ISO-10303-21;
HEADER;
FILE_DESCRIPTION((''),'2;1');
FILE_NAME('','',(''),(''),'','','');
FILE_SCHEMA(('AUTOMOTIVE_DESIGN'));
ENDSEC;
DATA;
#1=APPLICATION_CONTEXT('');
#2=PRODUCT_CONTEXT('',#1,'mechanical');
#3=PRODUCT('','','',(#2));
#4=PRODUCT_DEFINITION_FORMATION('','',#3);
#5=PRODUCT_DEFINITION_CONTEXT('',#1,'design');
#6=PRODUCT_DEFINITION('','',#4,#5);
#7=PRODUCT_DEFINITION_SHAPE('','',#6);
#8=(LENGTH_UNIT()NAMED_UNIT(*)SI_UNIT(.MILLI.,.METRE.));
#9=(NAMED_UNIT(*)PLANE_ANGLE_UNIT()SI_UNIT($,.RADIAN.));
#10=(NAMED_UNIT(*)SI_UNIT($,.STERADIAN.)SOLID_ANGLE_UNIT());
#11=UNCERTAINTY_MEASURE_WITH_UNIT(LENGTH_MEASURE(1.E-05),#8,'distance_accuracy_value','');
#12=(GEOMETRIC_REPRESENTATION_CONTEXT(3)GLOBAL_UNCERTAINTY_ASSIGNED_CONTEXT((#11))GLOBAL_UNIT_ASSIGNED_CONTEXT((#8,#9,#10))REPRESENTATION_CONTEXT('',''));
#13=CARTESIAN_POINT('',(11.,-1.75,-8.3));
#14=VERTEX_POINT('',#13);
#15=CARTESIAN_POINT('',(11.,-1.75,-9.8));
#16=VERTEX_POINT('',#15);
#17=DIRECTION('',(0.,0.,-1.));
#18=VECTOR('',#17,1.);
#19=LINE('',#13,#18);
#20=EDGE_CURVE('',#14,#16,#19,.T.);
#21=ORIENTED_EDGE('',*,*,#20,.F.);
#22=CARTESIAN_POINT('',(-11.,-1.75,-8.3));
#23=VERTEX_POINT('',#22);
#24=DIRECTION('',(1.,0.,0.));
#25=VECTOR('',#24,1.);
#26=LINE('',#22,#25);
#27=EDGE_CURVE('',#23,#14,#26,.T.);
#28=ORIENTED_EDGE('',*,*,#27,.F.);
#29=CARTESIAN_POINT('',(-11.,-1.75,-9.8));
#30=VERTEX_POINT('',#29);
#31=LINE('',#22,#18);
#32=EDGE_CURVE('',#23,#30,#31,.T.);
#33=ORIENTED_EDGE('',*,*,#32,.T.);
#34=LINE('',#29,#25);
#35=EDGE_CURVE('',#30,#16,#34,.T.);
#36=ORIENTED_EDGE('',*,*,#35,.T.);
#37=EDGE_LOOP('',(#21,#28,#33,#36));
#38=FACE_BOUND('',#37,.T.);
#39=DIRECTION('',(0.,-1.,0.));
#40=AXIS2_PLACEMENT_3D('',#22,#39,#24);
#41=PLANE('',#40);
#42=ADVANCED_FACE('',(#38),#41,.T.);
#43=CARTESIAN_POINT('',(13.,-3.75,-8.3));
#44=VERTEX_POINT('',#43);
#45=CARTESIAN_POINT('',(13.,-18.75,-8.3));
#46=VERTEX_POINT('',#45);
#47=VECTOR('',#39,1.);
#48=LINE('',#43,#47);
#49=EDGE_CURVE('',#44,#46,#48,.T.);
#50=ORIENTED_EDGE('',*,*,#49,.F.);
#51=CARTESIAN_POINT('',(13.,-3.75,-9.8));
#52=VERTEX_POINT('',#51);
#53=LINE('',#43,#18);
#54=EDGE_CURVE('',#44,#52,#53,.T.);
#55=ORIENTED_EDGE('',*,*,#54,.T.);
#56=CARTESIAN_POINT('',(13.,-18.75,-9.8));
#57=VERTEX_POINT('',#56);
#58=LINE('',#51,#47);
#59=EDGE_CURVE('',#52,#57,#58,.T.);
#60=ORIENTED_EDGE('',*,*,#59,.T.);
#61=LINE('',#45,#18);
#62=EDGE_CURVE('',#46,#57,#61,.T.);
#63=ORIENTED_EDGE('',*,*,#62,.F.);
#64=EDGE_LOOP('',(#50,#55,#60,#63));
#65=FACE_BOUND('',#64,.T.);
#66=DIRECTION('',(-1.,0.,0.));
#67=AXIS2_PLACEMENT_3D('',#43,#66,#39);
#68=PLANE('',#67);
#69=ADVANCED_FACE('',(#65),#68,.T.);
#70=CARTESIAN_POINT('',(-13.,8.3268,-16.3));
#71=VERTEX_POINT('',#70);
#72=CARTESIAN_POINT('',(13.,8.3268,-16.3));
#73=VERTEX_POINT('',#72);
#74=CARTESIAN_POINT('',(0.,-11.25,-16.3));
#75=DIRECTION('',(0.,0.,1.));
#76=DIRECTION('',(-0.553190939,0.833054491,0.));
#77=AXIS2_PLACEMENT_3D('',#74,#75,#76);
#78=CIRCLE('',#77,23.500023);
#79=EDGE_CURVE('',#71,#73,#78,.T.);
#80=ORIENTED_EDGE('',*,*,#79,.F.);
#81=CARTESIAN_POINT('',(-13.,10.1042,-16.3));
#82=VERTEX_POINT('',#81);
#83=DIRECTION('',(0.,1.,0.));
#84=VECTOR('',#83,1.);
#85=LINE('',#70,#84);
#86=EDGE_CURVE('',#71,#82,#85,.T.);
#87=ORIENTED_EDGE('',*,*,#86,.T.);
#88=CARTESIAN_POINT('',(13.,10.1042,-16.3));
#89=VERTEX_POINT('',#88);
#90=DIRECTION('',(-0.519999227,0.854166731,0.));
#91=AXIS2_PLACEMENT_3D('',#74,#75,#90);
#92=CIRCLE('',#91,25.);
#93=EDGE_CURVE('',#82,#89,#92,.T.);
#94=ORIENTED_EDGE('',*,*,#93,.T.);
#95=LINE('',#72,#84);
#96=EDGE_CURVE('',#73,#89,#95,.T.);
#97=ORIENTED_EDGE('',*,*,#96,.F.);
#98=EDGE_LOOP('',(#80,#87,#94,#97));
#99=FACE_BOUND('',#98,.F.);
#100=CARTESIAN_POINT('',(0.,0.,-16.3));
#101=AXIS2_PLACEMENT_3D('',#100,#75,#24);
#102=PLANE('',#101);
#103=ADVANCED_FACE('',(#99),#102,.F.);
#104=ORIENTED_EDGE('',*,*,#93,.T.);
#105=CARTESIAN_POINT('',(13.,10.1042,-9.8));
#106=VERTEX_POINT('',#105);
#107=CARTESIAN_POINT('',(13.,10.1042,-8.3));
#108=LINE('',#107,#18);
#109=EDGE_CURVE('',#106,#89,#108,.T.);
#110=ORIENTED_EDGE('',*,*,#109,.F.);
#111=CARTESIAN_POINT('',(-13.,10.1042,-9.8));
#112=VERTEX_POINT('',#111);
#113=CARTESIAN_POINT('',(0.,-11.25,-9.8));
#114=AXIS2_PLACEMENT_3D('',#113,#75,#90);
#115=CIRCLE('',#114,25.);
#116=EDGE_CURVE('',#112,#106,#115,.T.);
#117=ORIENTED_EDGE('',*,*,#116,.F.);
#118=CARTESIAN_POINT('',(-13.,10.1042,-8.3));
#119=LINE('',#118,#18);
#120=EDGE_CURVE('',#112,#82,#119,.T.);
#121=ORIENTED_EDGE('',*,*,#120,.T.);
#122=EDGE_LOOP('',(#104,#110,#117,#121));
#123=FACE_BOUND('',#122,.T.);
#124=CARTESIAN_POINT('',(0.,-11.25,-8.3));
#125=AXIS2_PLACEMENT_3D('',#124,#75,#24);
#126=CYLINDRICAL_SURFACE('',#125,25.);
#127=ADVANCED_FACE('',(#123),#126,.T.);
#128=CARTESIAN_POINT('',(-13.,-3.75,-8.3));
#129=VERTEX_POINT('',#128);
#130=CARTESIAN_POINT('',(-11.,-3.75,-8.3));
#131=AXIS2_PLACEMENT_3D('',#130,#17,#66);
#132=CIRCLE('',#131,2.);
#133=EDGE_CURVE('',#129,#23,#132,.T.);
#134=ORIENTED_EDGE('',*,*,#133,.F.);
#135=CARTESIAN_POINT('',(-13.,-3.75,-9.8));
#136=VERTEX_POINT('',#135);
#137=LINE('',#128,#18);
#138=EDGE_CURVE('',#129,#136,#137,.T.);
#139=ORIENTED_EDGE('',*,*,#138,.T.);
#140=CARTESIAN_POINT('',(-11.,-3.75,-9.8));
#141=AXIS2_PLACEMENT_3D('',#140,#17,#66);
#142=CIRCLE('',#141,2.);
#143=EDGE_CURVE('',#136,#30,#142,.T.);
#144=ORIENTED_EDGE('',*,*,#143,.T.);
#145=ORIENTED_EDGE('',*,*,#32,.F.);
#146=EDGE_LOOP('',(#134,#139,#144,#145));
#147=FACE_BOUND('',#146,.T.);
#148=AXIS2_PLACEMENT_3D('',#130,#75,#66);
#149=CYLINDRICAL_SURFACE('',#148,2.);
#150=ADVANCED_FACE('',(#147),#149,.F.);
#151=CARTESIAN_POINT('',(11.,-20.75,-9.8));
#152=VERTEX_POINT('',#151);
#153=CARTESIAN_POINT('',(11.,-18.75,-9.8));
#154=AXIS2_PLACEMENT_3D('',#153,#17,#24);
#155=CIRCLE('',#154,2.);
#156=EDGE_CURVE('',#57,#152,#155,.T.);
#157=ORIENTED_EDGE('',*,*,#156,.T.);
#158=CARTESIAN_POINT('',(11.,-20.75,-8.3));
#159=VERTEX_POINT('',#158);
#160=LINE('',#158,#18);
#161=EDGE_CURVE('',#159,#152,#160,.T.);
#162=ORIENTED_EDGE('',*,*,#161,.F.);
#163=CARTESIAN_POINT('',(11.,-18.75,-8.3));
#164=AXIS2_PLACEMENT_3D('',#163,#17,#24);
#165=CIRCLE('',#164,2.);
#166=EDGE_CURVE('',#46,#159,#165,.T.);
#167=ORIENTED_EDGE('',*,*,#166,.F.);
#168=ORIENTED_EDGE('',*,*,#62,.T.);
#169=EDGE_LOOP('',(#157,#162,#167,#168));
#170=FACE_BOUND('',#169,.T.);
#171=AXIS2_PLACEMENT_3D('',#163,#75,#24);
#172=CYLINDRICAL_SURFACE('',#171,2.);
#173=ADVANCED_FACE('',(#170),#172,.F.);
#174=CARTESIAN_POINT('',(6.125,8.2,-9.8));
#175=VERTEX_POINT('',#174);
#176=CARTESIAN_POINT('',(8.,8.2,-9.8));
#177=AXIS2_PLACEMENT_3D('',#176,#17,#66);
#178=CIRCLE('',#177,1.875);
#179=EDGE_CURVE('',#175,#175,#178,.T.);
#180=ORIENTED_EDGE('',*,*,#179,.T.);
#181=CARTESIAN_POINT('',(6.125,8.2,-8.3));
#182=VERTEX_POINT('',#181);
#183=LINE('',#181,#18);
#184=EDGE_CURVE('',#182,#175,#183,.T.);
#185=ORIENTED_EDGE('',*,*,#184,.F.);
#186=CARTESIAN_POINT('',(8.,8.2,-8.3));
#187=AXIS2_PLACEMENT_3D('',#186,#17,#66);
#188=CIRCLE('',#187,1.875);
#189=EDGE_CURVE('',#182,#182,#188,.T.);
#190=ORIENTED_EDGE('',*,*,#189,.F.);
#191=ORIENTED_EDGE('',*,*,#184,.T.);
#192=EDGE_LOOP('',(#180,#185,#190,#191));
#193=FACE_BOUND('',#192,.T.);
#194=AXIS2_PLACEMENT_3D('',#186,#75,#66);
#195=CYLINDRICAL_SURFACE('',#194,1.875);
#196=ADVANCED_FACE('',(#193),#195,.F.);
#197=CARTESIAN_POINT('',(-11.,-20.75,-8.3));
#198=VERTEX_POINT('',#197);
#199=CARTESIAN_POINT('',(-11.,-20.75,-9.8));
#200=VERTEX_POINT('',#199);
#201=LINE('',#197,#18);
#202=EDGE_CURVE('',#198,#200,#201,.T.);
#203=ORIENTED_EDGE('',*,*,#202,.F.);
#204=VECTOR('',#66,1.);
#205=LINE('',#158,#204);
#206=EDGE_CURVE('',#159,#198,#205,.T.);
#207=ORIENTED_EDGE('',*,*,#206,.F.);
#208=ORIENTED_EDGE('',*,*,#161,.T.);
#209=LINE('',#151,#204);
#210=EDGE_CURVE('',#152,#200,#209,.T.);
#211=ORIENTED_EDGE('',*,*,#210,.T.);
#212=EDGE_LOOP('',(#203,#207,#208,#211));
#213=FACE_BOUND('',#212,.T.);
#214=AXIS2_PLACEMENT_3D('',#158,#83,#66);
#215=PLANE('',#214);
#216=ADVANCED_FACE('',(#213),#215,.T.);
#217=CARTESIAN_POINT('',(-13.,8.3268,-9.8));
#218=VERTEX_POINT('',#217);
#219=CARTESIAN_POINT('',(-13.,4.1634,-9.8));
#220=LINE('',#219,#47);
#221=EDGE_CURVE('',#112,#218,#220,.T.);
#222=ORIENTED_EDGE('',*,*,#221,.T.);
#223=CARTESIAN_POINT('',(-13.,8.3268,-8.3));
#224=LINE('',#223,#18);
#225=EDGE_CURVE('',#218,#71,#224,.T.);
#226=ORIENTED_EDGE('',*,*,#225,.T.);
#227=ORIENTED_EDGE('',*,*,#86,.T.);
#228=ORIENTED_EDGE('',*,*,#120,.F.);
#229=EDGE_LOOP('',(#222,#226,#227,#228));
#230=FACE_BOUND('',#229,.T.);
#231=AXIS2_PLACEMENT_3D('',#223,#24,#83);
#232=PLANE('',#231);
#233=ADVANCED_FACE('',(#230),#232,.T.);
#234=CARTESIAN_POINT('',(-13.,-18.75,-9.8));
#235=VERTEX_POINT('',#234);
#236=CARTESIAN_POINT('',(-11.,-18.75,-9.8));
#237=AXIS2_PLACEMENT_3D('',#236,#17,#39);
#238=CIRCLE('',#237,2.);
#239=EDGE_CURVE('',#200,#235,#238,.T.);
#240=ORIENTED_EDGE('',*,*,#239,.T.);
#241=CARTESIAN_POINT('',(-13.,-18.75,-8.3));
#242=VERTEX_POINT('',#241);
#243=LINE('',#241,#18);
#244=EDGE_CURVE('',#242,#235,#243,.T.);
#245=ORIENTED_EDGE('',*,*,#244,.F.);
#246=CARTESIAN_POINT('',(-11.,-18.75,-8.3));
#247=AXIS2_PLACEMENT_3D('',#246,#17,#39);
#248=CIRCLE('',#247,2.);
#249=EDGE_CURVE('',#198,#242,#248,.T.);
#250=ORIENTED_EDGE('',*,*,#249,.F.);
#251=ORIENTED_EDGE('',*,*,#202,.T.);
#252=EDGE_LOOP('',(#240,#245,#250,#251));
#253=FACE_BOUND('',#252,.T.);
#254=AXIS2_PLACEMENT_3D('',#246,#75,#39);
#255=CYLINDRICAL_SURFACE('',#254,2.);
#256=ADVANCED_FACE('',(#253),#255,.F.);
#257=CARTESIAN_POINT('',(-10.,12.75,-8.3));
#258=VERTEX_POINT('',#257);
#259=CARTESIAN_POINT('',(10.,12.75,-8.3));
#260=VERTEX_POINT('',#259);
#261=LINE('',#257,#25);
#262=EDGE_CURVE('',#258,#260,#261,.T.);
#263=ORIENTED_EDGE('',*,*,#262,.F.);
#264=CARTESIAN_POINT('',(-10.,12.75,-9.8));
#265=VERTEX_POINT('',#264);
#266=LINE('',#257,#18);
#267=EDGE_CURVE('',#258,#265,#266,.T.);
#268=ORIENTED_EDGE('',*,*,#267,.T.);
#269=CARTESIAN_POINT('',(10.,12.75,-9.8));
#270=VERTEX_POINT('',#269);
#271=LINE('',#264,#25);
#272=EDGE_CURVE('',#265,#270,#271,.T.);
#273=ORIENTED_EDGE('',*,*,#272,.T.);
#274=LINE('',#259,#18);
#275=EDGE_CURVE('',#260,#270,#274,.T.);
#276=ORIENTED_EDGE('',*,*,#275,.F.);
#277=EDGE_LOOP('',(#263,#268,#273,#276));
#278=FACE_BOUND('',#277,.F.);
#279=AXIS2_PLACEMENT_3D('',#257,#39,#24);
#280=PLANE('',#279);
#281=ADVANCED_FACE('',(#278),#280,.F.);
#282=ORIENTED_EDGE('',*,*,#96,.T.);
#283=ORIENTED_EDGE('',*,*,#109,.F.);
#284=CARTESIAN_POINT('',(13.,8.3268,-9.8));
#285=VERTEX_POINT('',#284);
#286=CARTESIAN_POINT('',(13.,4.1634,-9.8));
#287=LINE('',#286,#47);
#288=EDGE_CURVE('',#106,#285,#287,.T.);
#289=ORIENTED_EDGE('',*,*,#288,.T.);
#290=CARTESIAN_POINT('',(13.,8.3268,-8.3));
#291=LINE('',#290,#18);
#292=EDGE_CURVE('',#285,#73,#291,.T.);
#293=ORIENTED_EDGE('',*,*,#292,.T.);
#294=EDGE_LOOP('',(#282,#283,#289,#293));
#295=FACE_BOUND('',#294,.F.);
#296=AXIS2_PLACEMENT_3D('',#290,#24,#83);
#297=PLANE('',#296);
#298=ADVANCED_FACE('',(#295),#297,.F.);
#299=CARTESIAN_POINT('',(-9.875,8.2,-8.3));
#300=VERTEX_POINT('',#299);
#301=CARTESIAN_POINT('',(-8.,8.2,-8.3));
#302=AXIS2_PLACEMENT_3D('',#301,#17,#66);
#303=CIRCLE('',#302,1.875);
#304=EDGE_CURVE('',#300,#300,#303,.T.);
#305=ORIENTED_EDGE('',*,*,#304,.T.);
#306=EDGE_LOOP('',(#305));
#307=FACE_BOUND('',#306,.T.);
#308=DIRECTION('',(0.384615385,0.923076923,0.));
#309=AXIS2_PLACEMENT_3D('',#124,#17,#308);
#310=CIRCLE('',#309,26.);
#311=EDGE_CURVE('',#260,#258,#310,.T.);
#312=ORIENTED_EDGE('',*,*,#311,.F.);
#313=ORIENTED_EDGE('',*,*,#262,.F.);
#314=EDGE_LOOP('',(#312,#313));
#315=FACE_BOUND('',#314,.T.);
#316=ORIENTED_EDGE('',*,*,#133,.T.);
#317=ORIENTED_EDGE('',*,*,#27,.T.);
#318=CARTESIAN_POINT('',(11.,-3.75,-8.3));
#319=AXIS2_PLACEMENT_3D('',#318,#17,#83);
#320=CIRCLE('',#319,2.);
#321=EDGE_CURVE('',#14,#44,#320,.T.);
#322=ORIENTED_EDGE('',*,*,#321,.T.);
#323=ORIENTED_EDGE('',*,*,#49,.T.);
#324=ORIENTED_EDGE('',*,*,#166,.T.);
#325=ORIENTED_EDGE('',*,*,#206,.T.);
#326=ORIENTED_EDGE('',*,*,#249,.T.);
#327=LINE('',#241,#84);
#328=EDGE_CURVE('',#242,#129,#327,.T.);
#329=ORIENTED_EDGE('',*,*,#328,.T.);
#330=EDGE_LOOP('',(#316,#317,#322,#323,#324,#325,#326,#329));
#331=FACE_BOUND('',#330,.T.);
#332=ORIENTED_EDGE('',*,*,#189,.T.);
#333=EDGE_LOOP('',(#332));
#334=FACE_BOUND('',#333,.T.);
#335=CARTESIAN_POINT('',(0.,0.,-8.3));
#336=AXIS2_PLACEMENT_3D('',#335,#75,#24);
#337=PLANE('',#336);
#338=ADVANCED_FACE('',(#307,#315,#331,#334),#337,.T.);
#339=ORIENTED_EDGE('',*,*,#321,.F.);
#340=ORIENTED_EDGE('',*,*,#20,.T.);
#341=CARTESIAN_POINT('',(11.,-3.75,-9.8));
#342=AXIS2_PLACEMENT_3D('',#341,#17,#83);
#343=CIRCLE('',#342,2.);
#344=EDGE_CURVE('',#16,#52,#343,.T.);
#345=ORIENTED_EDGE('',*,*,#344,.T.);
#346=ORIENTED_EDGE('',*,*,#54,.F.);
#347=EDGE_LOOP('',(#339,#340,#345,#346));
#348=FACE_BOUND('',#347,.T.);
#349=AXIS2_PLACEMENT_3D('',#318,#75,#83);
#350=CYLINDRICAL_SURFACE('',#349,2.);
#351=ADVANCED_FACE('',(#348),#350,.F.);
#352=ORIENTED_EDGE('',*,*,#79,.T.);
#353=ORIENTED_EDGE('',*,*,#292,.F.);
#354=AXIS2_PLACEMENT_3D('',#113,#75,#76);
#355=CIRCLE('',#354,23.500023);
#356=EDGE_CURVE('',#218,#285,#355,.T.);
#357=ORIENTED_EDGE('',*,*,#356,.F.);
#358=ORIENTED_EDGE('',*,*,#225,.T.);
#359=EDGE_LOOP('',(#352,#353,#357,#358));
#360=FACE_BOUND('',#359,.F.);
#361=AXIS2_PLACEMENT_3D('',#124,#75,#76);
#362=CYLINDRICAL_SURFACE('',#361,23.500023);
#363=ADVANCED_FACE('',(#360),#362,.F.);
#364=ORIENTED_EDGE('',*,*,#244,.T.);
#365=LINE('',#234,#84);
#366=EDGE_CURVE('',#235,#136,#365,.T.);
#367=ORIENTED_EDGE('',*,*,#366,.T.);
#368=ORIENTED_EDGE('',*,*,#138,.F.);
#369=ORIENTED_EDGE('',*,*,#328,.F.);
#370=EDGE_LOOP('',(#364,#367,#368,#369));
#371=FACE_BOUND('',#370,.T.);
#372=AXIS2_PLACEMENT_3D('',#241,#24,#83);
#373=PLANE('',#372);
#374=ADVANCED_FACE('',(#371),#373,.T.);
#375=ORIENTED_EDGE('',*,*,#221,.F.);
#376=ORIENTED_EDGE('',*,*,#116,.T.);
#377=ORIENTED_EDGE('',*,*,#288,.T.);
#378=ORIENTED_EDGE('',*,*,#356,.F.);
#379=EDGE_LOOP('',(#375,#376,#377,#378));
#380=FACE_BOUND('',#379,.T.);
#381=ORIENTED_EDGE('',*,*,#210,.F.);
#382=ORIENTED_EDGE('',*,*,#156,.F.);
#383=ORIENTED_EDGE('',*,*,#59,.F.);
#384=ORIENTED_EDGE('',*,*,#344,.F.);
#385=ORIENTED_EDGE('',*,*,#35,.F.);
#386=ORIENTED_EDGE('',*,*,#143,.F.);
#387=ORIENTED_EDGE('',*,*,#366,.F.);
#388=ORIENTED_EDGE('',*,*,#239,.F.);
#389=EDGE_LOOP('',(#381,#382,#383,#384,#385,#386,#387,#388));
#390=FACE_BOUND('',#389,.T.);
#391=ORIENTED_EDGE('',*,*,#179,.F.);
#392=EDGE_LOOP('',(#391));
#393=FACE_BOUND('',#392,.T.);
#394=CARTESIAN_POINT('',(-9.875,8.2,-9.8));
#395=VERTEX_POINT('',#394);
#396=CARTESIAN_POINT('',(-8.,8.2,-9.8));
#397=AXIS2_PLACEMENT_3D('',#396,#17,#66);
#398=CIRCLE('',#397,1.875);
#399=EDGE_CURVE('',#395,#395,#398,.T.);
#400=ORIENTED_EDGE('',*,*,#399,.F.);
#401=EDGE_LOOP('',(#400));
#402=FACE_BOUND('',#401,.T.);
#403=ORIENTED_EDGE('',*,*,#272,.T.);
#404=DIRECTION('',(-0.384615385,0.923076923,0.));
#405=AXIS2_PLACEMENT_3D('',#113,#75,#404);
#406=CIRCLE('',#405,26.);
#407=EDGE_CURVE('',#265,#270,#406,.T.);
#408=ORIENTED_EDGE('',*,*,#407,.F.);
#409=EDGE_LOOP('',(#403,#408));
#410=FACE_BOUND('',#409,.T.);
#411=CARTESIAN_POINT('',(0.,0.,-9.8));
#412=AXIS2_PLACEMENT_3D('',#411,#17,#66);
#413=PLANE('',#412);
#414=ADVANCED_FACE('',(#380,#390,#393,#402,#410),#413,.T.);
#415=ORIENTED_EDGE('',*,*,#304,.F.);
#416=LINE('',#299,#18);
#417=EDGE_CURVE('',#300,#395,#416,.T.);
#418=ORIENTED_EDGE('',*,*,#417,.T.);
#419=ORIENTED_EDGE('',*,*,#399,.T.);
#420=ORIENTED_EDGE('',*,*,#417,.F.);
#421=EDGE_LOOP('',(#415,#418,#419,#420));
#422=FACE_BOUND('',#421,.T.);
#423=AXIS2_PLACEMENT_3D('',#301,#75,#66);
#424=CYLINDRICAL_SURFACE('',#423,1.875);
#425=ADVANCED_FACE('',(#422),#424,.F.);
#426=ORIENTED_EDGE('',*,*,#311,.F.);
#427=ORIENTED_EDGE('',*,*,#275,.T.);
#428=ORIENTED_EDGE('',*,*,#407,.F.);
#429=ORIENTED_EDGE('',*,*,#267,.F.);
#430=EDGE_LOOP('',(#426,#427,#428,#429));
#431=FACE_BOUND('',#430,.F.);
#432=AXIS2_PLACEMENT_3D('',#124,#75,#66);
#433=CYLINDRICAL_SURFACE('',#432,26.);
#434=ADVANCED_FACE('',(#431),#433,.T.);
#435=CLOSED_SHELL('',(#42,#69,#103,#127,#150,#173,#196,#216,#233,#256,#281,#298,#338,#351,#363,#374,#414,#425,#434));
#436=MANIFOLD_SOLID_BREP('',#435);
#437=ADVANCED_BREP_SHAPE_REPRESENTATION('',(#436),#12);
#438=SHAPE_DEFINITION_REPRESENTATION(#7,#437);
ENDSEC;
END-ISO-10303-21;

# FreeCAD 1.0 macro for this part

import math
import FreeCAD as App
import Part
import Sketcher

V = App.Vector
Q = App.Units.Quantity

doc = App.newDocument("Part")
body = doc.addObject("PartDesign::Body", "Body")

sketch1 = body.newObject("Sketcher::SketchObject", "Sketch")
sketch1.AttachmentSupport = (doc.getObject("XY_Plane"), [""])
sketch1.MapMode = "FlatFace"
sketch1.AttachmentOffset = App.Placement(V(0, 0, -8.3), App.Rotation())
sketch1.addGeometry([
    Part.ArcOfCircle(Part.Circle(V(0, -11.2, 0), V(0, 0, 1), 26), math.radians(113), math.radians(427)),
    Part.LineSegment(V(-10, 12.8, 0), V(10, 12.8, 0)),
    Part.LineSegment(V(11, -1.8, 0), V(-11, -1.8, 0)),
    Part.ArcOfCircle(Part.Circle(V(-11, -3.8, 0), V(0, 0, 1), 2), math.radians(90), math.radians(180)),
    Part.LineSegment(V(-13, -3.8, 0), V(-13, -18.8, 0)),
    Part.ArcOfCircle(Part.Circle(V(-11, -18.8, 0), V(0, 0, 1), 2), math.radians(180), math.radians(270)),
    Part.LineSegment(V(-11, -20.8, 0), V(11, -20.8, 0)),
    Part.ArcOfCircle(Part.Circle(V(11, -18.8, 0), V(0, 0, 1), 2), math.radians(-90), math.radians(0)),
    Part.LineSegment(V(13, -18.8, 0), V(13, -3.8, 0)),
    Part.ArcOfCircle(Part.Circle(V(11, -3.8, 0), V(0, 0, 1), 2), math.radians(0), math.radians(90)),
    Part.Circle(V(8, 8.2, 0), V(0, 0, 1), 1.9),
    Part.Circle(V(-8, 8.2, 0), V(0, 0, 1), 1.9),
], False)
sketch1.addConstraint([
    Sketcher.Constraint("Coincident", 0, 1, 1, 1),
    Sketcher.Constraint("Coincident", 1, 2, 0, 2),
    Sketcher.Constraint("Tangent", 2, 2, 3, 1),
    Sketcher.Constraint("Tangent", 3, 2, 4, 1),
    Sketcher.Constraint("Tangent", 4, 2, 5, 1),
    Sketcher.Constraint("Tangent", 5, 2, 6, 1),
    Sketcher.Constraint("Tangent", 6, 2, 7, 1),
    Sketcher.Constraint("Tangent", 7, 2, 8, 1),
    Sketcher.Constraint("Tangent", 8, 2, 9, 1),
    Sketcher.Constraint("Tangent", 9, 2, 2, 1),
    Sketcher.Constraint("Horizontal", 1),
    Sketcher.Constraint("Horizontal", 2),
    Sketcher.Constraint("Vertical", 4),
    Sketcher.Constraint("Horizontal", 6),
    Sketcher.Constraint("Vertical", 8),
    Sketcher.Constraint("Equal", 3, 5),
    Sketcher.Constraint("Equal", 5, 7),
    Sketcher.Constraint("Equal", 7, 9),
    Sketcher.Constraint("Equal", 10, 11),
    Sketcher.Constraint("Symmetric", 10, 3, 11, 3, -2),
    Sketcher.Constraint("PointOnObject", 0, 3, -2),
    Sketcher.Constraint("Radius", 0, Q("26 mm")),
    Sketcher.Constraint("Radius", 3, Q("2 mm")),
    Sketcher.Constraint("Diameter", 10, Q("3.75 mm")),
    Sketcher.Constraint("DistanceX", 1, 1, 1, 2, Q("20 mm")),
    Sketcher.Constraint("DistanceX", 3, 3, 10, 3, Q("19 mm")),
    Sketcher.Constraint("DistanceX", 11, 3, 9, 3, Q("19 mm")),
    Sketcher.Constraint("DistanceX", 0, 1, 11, 3, Q("2 mm")),
    Sketcher.Constraint("DistanceY", 4, 2, 4, 1, Q("15 mm")),
    Sketcher.Constraint("DistanceY", 3, 3, -1, 1, Q("3.75 mm")),
    Sketcher.Constraint("DistanceY", -1, 1, 10, 3, Q("8.2 mm")),
    Sketcher.Constraint("DistanceY", 0, 3, 3, 3, Q("7.5 mm")),
])
pad1 = body.newObject("PartDesign::Pad", "Pad")
pad1.Profile = sketch1
pad1.Length = 1.5
pad1.Reversed = True

sketch2 = body.newObject("Sketcher::SketchObject", "Sketch001")
sketch2.AttachmentSupport = (doc.getObject("XY_Plane"), [""])
sketch2.MapMode = "FlatFace"
sketch2.AttachmentOffset = App.Placement(V(0, 0, -8.3), App.Rotation())
sketch2.addGeometry([
    Part.ArcOfCircle(Part.Circle(V(0, -11.2, 0), V(0, 0, 1), 25), math.radians(121), math.radians(419)),
    Part.LineSegment(V(13, 10.1, 0), V(13, 8.3, 0)),
    Part.ArcOfCircle(Part.Circle(V(0, -11.2, 0), V(0, 0, 1), 23.5), math.radians(124), math.radians(416)),
    Part.LineSegment(V(-13, 8.3, 0), V(-13, 10.1, 0)),
], False)
sketch2.addConstraint([
    Sketcher.Constraint("Coincident", 0, 2, 1, 1),
    Sketcher.Constraint("Coincident", 1, 2, 2, 2),
    Sketcher.Constraint("Coincident", 2, 1, 3, 1),
    Sketcher.Constraint("Coincident", 3, 2, 0, 1),
    Sketcher.Constraint("Vertical", 1),
    Sketcher.Constraint("Vertical", 3),
    Sketcher.Constraint("Coincident", 2, 3, 0, 3),
    Sketcher.Constraint("Symmetric", 1, 2, 2, 1, -2),
    Sketcher.Constraint("Radius", 0, Q("25 mm")),
    Sketcher.Constraint("DistanceX", 2, 1, 1, 2, Q("26 mm")),
    Sketcher.Constraint("Radius", 2, Q("23.5 mm")),
    Sketcher.Constraint("DistanceY", 0, 3, -1, 1, Q("11.25 mm")),
])
pad2 = body.newObject("PartDesign::Pad", "Pad001")
pad2.Profile = sketch2
pad2.Length = 8
pad2.Reversed = True

doc.recompute()
